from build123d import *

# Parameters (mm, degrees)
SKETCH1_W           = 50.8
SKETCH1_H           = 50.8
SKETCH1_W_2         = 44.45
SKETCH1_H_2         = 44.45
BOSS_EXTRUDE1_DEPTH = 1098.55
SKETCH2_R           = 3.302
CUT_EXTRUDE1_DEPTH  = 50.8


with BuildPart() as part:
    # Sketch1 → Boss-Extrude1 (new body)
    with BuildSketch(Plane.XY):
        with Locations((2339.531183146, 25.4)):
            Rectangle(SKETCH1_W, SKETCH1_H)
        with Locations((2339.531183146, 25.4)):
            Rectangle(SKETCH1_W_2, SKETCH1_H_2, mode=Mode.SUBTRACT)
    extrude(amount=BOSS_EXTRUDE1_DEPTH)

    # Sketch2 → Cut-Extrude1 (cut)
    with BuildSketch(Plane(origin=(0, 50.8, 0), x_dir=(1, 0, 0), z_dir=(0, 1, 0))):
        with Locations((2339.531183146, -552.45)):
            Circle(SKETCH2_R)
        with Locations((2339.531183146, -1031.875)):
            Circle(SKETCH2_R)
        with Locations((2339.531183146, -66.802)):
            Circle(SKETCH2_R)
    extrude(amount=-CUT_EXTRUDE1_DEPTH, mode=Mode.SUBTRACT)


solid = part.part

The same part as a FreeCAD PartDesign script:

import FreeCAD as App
import Part
import Sketcher
from FreeCAD import Vector
Q = App.Units.Quantity


def add_polygon(sketch, points):
    """Adds a closed chain of lines whose ends are joined by coincident constraints."""
    first, n = sketch.GeometryCount, len(points)
    for a, b in zip(points, points[1:] + points[:1]):
        sketch.addGeometry(Part.LineSegment(App.Vector(*a, 0), App.Vector(*b, 0)), False)
    for i in range(n):
        sketch.addConstraint(Sketcher.Constraint("Coincident", first + i, 2, first + (i + 1) % n, 1))

doc = App.newDocument("Part")
body = doc.addObject("PartDesign::Body", "Body")

# Sketch on XY plane
sketch1 = body.newObject("Sketcher::SketchObject", "Sketch")
sketch1.AttachmentSupport = (doc.getObject("XY_Plane"), [""])
sketch1.MapMode = "FlatFace"
add_polygon(sketch1, [(2314, 51), (2314, 0), (2365, 0), (2365, 51)])  # lines 0-3
add_polygon(sketch1, [(2362, 3), (2317, 3), (2317, 48), (2362, 48)])  # lines 4-7
sketch1.addConstraint(Sketcher.Constraint("Vertical", 0))
sketch1.addConstraint(Sketcher.Constraint("Horizontal", 1))
sketch1.addConstraint(Sketcher.Constraint("Vertical", 2))
sketch1.addConstraint(Sketcher.Constraint("Horizontal", 3))
sketch1.addConstraint(Sketcher.Constraint("Horizontal", 4))
sketch1.addConstraint(Sketcher.Constraint("Vertical", 5))
sketch1.addConstraint(Sketcher.Constraint("Horizontal", 6))
sketch1.addConstraint(Sketcher.Constraint("Vertical", 7))
sketch1.addConstraint(Sketcher.Constraint("PointOnObject", 0, 2, -1))
sketch1.addConstraint(Sketcher.Constraint("Equal", 3, 0))
sketch1.addConstraint(Sketcher.Constraint("Equal", 6, 5))
sketch1.addConstraint(Sketcher.Constraint("DistanceX", 1, 1, 1, 2, Q("2 in")))
sketch1.addConstraint(Sketcher.Constraint("DistanceX", 4, 2, 4, 1, Q("1.75 in")))
sketch1.addConstraint(Sketcher.Constraint("DistanceY", -1, 1, 4, 2, Q("0.125 in")))
sketch1.addConstraint(Sketcher.Constraint("DistanceX", 0, 2, 4, 2, Q("0.125 in")))
sketch1.addConstraint(Sketcher.Constraint("DistanceX", -1, 1, 0, 2, 2314.131183))
pad1 = body.newObject("PartDesign::Pad", "Pad")
pad1.Profile = sketch1
pad1.Length = Q("43.25 in")

# Sketch on XZ plane
sketch2 = body.newObject("Sketcher::SketchObject", "Sketch001")
sketch2.AttachmentSupport = (doc.getObject("XZ_Plane"), [""])
sketch2.MapMode = "FlatFace"
sketch2.AttachmentOffset = App.Placement(Vector(0, 0, -2 * 25.4), App.Rotation())
sketch2.addGeometry(Part.Circle(Vector(2339.5, 552.5, 0), Vector(0, 0, 1), 3.3), False)
sketch2.addGeometry(Part.Circle(Vector(2339.5, 1031.9, 0), Vector(0, 0, 1), 3.3), False)
sketch2.addGeometry(Part.Circle(Vector(2339.5, 66.8, 0), Vector(0, 0, 1), 3.3), False)
sketch2.addConstraint(Sketcher.Constraint("Equal", 0, 1))
sketch2.addConstraint(Sketcher.Constraint("Equal", 1, 2))
sketch2.addConstraint(Sketcher.Constraint("Vertical", 0, 3, 1, 3))
sketch2.addConstraint(Sketcher.Constraint("Vertical", 1, 3, 2, 3))
sketch2.addConstraint(Sketcher.Constraint("Diameter", 0, Q("0.26 in")))
sketch2.addConstraint(Sketcher.Constraint("DistanceY", -1, 1, 0, 3, Q("21.75 in")))
sketch2.addConstraint(Sketcher.Constraint("DistanceY", -1, 1, 2, 3, Q("2.63 in")))
sketch2.addConstraint(Sketcher.Constraint("DistanceY", -1, 1, 1, 3, Q("40.625 in")))
sketch2.addConstraint(Sketcher.Constraint("DistanceX", -1, 1, 0, 3, 2339.531183))
pocket1 = body.newObject("PartDesign::Pocket", "Pocket")
pocket1.Profile = sketch2
pocket1.Length = Q("2 in")
pocket1.Reversed = True

doc.recompute()
